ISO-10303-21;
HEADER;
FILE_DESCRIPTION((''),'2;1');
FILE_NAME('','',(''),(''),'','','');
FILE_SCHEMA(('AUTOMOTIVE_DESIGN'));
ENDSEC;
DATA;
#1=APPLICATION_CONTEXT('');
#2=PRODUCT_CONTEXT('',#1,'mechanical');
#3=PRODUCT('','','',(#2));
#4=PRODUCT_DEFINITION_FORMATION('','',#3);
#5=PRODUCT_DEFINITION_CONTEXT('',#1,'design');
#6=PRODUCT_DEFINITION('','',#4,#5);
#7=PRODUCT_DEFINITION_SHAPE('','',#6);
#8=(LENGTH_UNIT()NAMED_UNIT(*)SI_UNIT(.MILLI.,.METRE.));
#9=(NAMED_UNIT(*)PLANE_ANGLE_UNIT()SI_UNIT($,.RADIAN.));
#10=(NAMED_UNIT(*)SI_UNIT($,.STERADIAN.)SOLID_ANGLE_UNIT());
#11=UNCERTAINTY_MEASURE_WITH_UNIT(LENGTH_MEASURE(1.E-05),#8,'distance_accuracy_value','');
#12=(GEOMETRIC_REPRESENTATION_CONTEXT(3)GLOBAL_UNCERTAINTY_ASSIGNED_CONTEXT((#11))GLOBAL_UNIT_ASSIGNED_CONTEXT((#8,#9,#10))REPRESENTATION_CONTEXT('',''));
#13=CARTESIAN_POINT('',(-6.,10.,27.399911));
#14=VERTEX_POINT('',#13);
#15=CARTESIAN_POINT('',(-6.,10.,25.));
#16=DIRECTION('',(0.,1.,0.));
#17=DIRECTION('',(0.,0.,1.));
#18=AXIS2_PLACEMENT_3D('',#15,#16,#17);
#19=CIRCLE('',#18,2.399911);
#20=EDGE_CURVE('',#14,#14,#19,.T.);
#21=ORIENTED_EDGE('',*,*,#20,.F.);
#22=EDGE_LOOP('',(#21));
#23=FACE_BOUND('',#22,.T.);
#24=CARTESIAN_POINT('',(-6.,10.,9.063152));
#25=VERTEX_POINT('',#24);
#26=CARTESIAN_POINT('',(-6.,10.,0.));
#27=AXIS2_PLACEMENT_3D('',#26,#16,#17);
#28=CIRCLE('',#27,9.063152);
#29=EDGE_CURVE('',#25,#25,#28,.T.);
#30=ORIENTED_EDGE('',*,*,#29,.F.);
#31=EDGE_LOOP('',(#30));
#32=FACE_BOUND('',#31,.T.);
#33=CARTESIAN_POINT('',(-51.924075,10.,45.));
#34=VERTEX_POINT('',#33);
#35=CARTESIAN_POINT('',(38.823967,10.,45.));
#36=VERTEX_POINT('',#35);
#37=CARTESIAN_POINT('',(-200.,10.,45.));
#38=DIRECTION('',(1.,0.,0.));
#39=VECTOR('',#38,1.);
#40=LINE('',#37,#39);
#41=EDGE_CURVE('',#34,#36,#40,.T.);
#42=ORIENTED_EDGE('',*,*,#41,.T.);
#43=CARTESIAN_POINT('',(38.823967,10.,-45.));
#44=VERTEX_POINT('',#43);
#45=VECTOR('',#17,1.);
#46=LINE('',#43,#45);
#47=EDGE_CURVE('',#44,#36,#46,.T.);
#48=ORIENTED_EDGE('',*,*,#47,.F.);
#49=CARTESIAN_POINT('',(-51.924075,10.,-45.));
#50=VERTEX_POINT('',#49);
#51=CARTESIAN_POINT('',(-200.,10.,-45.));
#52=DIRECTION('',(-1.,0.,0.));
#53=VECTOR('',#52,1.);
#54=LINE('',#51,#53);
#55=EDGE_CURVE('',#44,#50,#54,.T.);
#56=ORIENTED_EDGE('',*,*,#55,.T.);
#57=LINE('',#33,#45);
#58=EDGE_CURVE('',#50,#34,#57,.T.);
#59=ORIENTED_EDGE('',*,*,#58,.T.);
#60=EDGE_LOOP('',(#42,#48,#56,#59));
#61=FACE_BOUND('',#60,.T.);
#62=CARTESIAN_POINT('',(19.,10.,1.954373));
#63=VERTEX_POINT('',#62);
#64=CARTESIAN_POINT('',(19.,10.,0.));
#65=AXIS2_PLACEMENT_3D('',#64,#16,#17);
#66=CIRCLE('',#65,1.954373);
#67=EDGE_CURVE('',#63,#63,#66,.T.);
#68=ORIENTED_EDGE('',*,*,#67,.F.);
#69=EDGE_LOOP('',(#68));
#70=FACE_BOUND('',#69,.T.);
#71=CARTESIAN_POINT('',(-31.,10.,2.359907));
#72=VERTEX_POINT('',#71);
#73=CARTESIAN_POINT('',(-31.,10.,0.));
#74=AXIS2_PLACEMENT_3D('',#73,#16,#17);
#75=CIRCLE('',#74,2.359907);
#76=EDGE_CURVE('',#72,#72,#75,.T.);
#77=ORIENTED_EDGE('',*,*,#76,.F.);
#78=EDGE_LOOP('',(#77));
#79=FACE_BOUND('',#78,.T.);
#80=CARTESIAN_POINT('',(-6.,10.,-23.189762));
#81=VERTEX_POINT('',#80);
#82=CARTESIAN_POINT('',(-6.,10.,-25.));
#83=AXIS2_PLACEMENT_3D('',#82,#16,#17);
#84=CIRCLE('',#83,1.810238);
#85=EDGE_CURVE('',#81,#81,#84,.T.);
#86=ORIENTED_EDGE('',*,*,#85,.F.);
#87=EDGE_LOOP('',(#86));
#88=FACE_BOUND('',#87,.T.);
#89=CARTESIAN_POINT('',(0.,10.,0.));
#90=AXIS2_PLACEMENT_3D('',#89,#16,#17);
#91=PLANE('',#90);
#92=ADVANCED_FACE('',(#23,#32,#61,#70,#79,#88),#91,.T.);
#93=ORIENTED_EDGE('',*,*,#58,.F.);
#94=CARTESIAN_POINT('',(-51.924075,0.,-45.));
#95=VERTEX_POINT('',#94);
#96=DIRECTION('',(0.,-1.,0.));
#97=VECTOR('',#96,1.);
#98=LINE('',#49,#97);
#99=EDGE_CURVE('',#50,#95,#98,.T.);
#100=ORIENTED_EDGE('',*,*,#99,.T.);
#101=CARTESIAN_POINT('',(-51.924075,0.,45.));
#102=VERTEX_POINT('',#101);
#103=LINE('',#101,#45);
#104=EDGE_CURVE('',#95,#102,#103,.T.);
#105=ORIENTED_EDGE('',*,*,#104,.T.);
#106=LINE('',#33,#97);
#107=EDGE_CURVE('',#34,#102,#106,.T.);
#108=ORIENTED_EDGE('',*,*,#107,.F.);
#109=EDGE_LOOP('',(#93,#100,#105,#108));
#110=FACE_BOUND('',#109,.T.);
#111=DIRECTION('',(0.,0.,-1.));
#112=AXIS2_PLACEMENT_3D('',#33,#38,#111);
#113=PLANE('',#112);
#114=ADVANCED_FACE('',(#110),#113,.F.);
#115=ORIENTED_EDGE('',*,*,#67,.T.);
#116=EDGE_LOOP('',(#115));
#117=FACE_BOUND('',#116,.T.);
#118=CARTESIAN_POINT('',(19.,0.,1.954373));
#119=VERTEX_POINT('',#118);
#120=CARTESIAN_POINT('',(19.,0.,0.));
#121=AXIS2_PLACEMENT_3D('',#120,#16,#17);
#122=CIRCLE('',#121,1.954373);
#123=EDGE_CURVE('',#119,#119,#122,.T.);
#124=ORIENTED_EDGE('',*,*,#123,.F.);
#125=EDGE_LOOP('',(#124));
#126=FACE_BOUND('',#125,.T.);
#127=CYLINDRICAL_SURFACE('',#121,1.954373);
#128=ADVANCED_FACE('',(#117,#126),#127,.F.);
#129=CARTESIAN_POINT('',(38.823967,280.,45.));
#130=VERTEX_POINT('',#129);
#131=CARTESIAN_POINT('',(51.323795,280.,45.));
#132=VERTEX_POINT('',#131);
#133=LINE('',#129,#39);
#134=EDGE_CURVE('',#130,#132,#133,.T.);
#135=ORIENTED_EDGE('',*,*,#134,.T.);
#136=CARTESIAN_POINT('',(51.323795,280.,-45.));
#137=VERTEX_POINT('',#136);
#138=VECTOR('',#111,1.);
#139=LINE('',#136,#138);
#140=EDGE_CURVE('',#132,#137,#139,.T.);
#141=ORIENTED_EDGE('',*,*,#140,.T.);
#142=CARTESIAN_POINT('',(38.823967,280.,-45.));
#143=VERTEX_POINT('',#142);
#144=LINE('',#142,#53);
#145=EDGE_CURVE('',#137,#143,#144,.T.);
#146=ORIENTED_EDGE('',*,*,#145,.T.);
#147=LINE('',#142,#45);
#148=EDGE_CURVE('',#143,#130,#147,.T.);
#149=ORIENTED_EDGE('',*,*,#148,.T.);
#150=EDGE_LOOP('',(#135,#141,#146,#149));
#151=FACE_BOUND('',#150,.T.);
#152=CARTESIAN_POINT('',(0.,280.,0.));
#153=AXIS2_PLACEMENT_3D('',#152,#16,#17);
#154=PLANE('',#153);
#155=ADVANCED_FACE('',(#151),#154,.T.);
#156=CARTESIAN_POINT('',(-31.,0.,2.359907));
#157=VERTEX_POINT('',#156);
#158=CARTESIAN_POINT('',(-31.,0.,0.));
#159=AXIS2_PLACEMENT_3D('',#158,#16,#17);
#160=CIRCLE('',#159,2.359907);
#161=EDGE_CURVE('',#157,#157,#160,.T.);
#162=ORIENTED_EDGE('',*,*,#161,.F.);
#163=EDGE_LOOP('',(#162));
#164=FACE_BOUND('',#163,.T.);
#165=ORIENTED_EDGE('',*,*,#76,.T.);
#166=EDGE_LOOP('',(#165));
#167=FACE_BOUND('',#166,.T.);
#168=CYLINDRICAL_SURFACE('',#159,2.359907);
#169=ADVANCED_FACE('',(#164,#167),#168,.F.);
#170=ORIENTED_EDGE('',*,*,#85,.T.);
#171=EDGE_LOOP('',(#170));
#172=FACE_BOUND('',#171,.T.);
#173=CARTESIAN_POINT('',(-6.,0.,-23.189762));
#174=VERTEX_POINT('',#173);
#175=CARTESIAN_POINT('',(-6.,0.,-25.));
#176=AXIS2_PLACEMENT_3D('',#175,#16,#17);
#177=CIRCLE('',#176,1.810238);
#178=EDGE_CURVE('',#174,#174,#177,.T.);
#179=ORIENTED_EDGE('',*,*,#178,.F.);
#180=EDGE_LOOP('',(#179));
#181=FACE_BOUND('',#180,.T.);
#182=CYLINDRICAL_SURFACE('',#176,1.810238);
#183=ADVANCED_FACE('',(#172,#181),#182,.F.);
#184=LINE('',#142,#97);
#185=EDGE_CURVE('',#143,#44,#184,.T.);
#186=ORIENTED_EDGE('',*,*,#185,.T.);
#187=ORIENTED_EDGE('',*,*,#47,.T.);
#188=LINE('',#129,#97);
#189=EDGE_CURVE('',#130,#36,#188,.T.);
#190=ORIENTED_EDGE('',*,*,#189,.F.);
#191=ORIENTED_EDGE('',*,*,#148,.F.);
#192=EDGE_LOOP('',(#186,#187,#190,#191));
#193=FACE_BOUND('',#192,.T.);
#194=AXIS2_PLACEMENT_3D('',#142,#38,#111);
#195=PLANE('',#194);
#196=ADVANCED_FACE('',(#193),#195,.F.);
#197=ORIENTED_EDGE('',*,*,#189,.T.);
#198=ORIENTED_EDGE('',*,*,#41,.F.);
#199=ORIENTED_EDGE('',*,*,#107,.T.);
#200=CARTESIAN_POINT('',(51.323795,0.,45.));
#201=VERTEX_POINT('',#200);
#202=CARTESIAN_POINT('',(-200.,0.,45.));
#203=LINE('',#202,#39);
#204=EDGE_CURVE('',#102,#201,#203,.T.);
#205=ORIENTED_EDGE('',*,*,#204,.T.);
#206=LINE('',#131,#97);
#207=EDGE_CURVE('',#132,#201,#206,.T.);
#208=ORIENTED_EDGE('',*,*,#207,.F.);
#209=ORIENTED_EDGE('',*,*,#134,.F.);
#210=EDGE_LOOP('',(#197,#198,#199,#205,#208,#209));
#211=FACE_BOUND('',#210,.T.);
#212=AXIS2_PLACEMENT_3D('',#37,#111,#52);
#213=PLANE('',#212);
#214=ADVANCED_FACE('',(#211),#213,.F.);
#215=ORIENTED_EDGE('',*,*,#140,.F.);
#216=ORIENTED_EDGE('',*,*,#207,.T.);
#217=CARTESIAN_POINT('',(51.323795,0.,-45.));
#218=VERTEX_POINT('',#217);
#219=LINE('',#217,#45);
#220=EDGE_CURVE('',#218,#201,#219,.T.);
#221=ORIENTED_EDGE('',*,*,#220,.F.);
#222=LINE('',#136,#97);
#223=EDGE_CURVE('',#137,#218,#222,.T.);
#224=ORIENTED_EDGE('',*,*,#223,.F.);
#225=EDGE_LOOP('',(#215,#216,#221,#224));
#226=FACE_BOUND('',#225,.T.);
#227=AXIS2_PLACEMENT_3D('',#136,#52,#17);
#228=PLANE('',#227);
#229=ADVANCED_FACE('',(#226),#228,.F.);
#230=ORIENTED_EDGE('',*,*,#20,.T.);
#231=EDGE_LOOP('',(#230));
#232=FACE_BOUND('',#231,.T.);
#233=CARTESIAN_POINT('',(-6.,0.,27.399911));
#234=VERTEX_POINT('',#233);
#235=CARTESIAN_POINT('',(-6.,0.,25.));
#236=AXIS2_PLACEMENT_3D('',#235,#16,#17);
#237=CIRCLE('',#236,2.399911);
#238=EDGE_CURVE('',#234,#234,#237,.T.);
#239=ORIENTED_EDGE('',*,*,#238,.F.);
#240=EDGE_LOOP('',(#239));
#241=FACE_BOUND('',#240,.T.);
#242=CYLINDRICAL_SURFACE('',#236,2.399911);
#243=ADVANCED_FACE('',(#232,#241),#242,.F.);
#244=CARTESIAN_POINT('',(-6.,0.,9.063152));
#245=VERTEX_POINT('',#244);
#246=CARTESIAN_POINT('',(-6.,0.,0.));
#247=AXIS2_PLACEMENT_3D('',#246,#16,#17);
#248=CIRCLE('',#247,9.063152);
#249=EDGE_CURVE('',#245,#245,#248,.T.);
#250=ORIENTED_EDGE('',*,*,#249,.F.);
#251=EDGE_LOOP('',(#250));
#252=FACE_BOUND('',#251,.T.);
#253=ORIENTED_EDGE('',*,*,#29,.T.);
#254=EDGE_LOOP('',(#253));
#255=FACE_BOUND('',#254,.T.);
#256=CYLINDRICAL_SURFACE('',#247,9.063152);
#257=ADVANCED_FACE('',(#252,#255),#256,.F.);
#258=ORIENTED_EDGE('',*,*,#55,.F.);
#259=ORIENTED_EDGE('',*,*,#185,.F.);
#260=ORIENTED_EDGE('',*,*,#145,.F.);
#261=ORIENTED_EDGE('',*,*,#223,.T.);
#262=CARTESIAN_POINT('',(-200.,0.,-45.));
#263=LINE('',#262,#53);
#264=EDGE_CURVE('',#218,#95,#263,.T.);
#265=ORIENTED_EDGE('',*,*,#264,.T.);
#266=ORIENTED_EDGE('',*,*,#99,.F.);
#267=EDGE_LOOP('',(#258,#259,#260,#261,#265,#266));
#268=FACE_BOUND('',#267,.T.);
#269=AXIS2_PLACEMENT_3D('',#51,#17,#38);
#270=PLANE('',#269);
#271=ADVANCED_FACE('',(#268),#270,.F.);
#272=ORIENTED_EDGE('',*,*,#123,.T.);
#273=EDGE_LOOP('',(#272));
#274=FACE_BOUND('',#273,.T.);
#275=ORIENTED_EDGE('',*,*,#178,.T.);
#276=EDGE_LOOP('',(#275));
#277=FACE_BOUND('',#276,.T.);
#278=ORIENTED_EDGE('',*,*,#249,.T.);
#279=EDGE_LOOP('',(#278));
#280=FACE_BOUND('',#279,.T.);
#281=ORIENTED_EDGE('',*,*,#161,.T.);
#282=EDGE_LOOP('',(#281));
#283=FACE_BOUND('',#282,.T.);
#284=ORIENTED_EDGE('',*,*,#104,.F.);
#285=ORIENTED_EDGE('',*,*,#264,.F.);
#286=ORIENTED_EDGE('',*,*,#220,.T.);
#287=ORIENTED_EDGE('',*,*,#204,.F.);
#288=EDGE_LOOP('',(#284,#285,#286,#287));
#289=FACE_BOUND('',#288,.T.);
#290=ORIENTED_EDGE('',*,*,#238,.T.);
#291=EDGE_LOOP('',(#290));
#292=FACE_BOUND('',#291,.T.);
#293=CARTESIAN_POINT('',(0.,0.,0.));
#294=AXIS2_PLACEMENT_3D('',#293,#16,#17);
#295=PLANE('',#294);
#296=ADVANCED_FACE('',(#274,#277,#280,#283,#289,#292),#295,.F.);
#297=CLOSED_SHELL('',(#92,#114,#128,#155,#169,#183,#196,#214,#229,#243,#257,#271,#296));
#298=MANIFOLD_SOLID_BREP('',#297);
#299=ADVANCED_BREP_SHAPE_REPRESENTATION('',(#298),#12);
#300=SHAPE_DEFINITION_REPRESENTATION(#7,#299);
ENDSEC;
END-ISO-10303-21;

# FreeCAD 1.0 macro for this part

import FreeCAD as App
import Part
import Sketcher
from FreeCAD import Vector
Q = App.Units.Quantity

doc = App.newDocument("Part")
body = doc.addObject("PartDesign::Body", "Body")

sketch1 = body.newObject("Sketcher::SketchObject", "Sketch")
sketch1.AttachmentSupport = (doc.getObject("XZ_Plane"), [""])
sketch1.MapMode = "FlatFace"
sketch1.addGeometry([
    Part.LineSegment(Vector(-200, -45, 0), Vector(-200, 45, 0)),
    Part.LineSegment(Vector(-200, 45, 0), Vector(200, 45, 0)),
    Part.LineSegment(Vector(200, 45, 0), Vector(200, -45, 0)),
    Part.LineSegment(Vector(200, -45, 0), Vector(-200, -45, 0)),
], False)
sketch1.addConstraint([
    Sketcher.Constraint("Coincident", 0, 2, 1, 1),
    Sketcher.Constraint("Coincident", 1, 2, 2, 1),
    Sketcher.Constraint("Coincident", 2, 2, 3, 1),
    Sketcher.Constraint("Coincident", 3, 2, 0, 1),
    Sketcher.Constraint("Vertical", 0),
    Sketcher.Constraint("Horizontal", 1),
    Sketcher.Constraint("Vertical", 2),
    Sketcher.Constraint("Horizontal", 3),
    Sketcher.Constraint("Symmetric", 0, 2, 2, 2, -1, 1),
    Sketcher.Constraint("DistanceX", 1, 1, 1, 2, Q("400 mm")),
    Sketcher.Constraint("DistanceY", 0, 1, 0, 2, Q("90 mm")),
])
pad1 = body.newObject("PartDesign::Pad", "Pad")
pad1.Profile = sketch1
pad1.Length = 10
pad1.Reversed = True

sketch2 = body.newObject("Sketcher::SketchObject", "Sketch001")
sketch2.AttachmentSupport = (doc.getObject("XZ_Plane"), [""])
sketch2.MapMode = "FlatFace"
sketch2.AttachmentOffset = App.Placement(Vector(0, 0, -10), App.Rotation())
sketch2.addGeometry(Part.Circle(Vector(-6, 0, 0), Vector(0, 0, 1), 9), False)
sketch2.addConstraint([
    Sketcher.Constraint("PointOnObject", 0, 3, -1),
    Sketcher.Constraint("DistanceX", 0, 3, -1, 1, Q("6 mm")),
    Sketcher.Constraint("Diameter", 0, Q("18.126305 mm")),
])
pocket1 = body.newObject("PartDesign::Pocket", "Pocket")
pocket1.Profile = sketch2
pocket1.Length = 10
pocket1.Reversed = True

sketch3 = body.newObject("Sketcher::SketchObject", "Sketch002")
sketch3.AttachmentSupport = (doc.getObject("XZ_Plane"), [""])
sketch3.MapMode = "FlatFace"
sketch3.AttachmentOffset = App.Placement(Vector(0, 0, -10), App.Rotation())
sketch3.addGeometry([
    Part.Circle(Vector(-6, -25, 0), Vector(0, 0, 1), 1.8),
    Part.Circle(Vector(19, 0, 0), Vector(0, 0, 1), 2),
    Part.Circle(Vector(-6, 25, 0), Vector(0, 0, 1), 2.4),
    Part.Circle(Vector(-31, 0, 0), Vector(0, 0, 1), 2.4),
], False)
sketch3.addConstraint([
    Sketcher.Constraint("Symmetric", 0, 3, 2, 3, -1),
    Sketcher.Constraint("PointOnObject", 1, 3, -1),
    Sketcher.Constraint("PointOnObject", 3, 3, -1),
    Sketcher.Constraint("DistanceX", 0, 3, -1, 1, Q("6 mm")),
    Sketcher.Constraint("DistanceY", 0, 3, -1, 1, Q("25 mm")),
    Sketcher.Constraint("DistanceX", -1, 1, 1, 3, Q("19 mm")),
    Sketcher.Constraint("DistanceX", 3, 3, -1, 1, Q("31 mm")),
    Sketcher.Constraint("Diameter", 0, Q("3.620476 mm")),
    Sketcher.Constraint("Diameter", 1, Q("3.908746 mm")),
    Sketcher.Constraint("Diameter", 2, Q("4.799822 mm")),
    Sketcher.Constraint("Diameter", 3, Q("4.719814 mm")),
])
pocket2 = body.newObject("PartDesign::Pocket", "Pocket001")
pocket2.Profile = sketch3
pocket2.Length = 10
pocket2.Reversed = True

sketch4 = body.newObject("Sketcher::SketchObject", "Sketch003")
sketch4.AttachmentSupport = (doc.getObject("XZ_Plane"), [""])
sketch4.MapMode = "FlatFace"
sketch4.AttachmentOffset = App.Placement(Vector(0, 0, -10), App.Rotation())
sketch4.addGeometry([
    Part.Circle(Vector(-175, 21.6, 0), Vector(0, 0, 1), 6.1),
    Part.Circle(Vector(-135, 21.6, 0), Vector(0, 0, 1), 6.1),
    Part.Circle(Vector(-155, -23.4, 0), Vector(0, 0, 1), 4.7),
], False)
sketch4.addConstraint([
    Sketcher.Constraint("Horizontal", 0, 3, 1, 3),
    Sketcher.Constraint("DistanceX", 0, 3, -1, 1, Q("175 mm")),
    Sketcher.Constraint("DistanceX", 1, 3, -1, 1, Q("135 mm")),
    Sketcher.Constraint("DistanceX", 2, 3, -1, 1, Q("155 mm")),
    Sketcher.Constraint("DistanceY", 2, 3, 0, 3, Q("45 mm")),
    Sketcher.Constraint("Diameter", 1, Q("12.209719 mm")),
    Sketcher.Constraint("Diameter", 2, Q("9.48076 mm")),
    Sketcher.Constraint("Diameter", 0, Q("12.146712 mm")),
    Sketcher.Constraint("DistanceY", -1, 1, 0, 3, Q("21.552073 mm")),
])
pocket3 = body.newObject("PartDesign::Pocket", "Pocket002")
pocket3.Profile = sketch4
pocket3.Length = 10
pocket3.Reversed = True

sketch5 = body.newObject("Sketcher::SketchObject", "Sketch004")
sketch5.AttachmentSupport = (doc.getObject("XZ_Plane"), [""])
sketch5.MapMode = "FlatFace"
sketch5.AttachmentOffset = App.Placement(Vector(0, 0, -10), App.Rotation())
sketch5.addGeometry([
    Part.LineSegment(Vector(39, -45, 0), Vector(39, 45, 0)),
    Part.LineSegment(Vector(39, 45, 0), Vector(51, 45, 0)),
    Part.LineSegment(Vector(51, 45, 0), Vector(51, -45, 0)),
    Part.LineSegment(Vector(51, -45, 0), Vector(39, -45, 0)),
], False)
sketch5.addConstraint([
    Sketcher.Constraint("Coincident", 0, 2, 1, 1),
    Sketcher.Constraint("Coincident", 1, 2, 2, 1),
    Sketcher.Constraint("Coincident", 2, 2, 3, 1),
    Sketcher.Constraint("Coincident", 3, 2, 0, 1),
    Sketcher.Constraint("Vertical", 0),
    Sketcher.Constraint("Horizontal", 1),
    Sketcher.Constraint("Vertical", 2),
    Sketcher.Constraint("Horizontal", 3),
    Sketcher.Constraint("DistanceY", 0, 1, 0, 2, Q("90 mm")),
    Sketcher.Constraint("DistanceY", -1, 1, 0, 2, Q("45 mm")),
    Sketcher.Constraint("DistanceX", 1, 1, 1, 2, Q("12.499828 mm")),
    Sketcher.Constraint("DistanceX", -1, 1, 0, 2, Q("38.823967 mm")),
])
pad2 = body.newObject("PartDesign::Pad", "Pad001")
pad2.Profile = sketch5
pad2.Length = 270
pad2.Reversed = True

sketch6 = body.newObject("Sketcher::SketchObject", "Sketch005")
sketch6.AttachmentSupport = (doc.getObject("XZ_Plane"), [""])
sketch6.MapMode = "FlatFace"
sketch6.addGeometry([
    Part.LineSegment(Vector(-200, 45, 0), Vector(-200, -45, 0)),
    Part.LineSegment(Vector(-200, -45, 0), Vector(-52, -45, 0)),
    Part.LineSegment(Vector(-52, -45, 0), Vector(-52, 45, 0)),
    Part.LineSegment(Vector(-52, 45, 0), Vector(-200, 45, 0)),
], False)
sketch6.addConstraint([
    Sketcher.Constraint("Coincident", 0, 2, 1, 1),
    Sketcher.Constraint("Coincident", 1, 2, 2, 1),
    Sketcher.Constraint("Coincident", 2, 2, 3, 1),
    Sketcher.Constraint("Coincident", 3, 2, 0, 1),
    Sketcher.Constraint("Vertical", 0),
    Sketcher.Constraint("Horizontal", 1),
    Sketcher.Constraint("Vertical", 2),
    Sketcher.Constraint("Horizontal", 3),
    Sketcher.Constraint("DistanceY", 0, 2, 0, 1, Q("90 mm")),
    Sketcher.Constraint("DistanceX", 0, 2, -1, 1, Q("200 mm")),
    Sketcher.Constraint("DistanceY", 0, 2, -1, 1, Q("45 mm")),
    Sketcher.Constraint("DistanceX", 1, 1, 1, 2, Q("148.075925 mm")),
])
pocket4 = body.newObject("PartDesign::Pocket", "Pocket003")
pocket4.Profile = sketch6
pocket4.Length = 10

sketch7 = body.newObject("Sketcher::SketchObject", "Sketch006")
sketch7.AttachmentSupport = (doc.getObject("XZ_Plane"), [""])
sketch7.MapMode = "FlatFace"
sketch7.AttachmentOffset = App.Placement(Vector(0, 0, -10), App.Rotation())
sketch7.addGeometry([
    Part.LineSegment(Vector(51, -45, 0), Vector(51, 61, 0)),
    Part.LineSegment(Vector(51, 61, 0), Vector(205, 61, 0)),
    Part.LineSegment(Vector(205, 61, 0), Vector(205, -45, 0)),
    Part.LineSegment(Vector(205, -45, 0), Vector(51, -45, 0)),
], False)
sketch7.addConstraint([
    Sketcher.Constraint("Coincident", 0, 2, 1, 1),
    Sketcher.Constraint("Coincident", 1, 2, 2, 1),
    Sketcher.Constraint("Coincident", 2, 2, 3, 1),
    Sketcher.Constraint("Coincident", 3, 2, 0, 1),
    Sketcher.Constraint("Vertical", 0),
    Sketcher.Constraint("Horizontal", 1),
    Sketcher.Constraint("Vertical", 2),
    Sketcher.Constraint("Horizontal", 3),
    Sketcher.Constraint("DistanceY", 2, 2, -1, 1, Q("45 mm")),
    Sketcher.Constraint("DistanceX", 1, 1, 1, 2, Q("153.73631 mm")),
    Sketcher.Constraint("DistanceY", 0, 1, 0, 2, Q("106.429176 mm")),
    Sketcher.Constraint("DistanceX", -1, 1, 0, 2, Q("51.323795 mm")),
])
pocket5 = body.newObject("PartDesign::Pocket", "Pocket004")
pocket5.Profile = sketch7
pocket5.Length = 10
pocket5.Reversed = True

doc.recompute()
